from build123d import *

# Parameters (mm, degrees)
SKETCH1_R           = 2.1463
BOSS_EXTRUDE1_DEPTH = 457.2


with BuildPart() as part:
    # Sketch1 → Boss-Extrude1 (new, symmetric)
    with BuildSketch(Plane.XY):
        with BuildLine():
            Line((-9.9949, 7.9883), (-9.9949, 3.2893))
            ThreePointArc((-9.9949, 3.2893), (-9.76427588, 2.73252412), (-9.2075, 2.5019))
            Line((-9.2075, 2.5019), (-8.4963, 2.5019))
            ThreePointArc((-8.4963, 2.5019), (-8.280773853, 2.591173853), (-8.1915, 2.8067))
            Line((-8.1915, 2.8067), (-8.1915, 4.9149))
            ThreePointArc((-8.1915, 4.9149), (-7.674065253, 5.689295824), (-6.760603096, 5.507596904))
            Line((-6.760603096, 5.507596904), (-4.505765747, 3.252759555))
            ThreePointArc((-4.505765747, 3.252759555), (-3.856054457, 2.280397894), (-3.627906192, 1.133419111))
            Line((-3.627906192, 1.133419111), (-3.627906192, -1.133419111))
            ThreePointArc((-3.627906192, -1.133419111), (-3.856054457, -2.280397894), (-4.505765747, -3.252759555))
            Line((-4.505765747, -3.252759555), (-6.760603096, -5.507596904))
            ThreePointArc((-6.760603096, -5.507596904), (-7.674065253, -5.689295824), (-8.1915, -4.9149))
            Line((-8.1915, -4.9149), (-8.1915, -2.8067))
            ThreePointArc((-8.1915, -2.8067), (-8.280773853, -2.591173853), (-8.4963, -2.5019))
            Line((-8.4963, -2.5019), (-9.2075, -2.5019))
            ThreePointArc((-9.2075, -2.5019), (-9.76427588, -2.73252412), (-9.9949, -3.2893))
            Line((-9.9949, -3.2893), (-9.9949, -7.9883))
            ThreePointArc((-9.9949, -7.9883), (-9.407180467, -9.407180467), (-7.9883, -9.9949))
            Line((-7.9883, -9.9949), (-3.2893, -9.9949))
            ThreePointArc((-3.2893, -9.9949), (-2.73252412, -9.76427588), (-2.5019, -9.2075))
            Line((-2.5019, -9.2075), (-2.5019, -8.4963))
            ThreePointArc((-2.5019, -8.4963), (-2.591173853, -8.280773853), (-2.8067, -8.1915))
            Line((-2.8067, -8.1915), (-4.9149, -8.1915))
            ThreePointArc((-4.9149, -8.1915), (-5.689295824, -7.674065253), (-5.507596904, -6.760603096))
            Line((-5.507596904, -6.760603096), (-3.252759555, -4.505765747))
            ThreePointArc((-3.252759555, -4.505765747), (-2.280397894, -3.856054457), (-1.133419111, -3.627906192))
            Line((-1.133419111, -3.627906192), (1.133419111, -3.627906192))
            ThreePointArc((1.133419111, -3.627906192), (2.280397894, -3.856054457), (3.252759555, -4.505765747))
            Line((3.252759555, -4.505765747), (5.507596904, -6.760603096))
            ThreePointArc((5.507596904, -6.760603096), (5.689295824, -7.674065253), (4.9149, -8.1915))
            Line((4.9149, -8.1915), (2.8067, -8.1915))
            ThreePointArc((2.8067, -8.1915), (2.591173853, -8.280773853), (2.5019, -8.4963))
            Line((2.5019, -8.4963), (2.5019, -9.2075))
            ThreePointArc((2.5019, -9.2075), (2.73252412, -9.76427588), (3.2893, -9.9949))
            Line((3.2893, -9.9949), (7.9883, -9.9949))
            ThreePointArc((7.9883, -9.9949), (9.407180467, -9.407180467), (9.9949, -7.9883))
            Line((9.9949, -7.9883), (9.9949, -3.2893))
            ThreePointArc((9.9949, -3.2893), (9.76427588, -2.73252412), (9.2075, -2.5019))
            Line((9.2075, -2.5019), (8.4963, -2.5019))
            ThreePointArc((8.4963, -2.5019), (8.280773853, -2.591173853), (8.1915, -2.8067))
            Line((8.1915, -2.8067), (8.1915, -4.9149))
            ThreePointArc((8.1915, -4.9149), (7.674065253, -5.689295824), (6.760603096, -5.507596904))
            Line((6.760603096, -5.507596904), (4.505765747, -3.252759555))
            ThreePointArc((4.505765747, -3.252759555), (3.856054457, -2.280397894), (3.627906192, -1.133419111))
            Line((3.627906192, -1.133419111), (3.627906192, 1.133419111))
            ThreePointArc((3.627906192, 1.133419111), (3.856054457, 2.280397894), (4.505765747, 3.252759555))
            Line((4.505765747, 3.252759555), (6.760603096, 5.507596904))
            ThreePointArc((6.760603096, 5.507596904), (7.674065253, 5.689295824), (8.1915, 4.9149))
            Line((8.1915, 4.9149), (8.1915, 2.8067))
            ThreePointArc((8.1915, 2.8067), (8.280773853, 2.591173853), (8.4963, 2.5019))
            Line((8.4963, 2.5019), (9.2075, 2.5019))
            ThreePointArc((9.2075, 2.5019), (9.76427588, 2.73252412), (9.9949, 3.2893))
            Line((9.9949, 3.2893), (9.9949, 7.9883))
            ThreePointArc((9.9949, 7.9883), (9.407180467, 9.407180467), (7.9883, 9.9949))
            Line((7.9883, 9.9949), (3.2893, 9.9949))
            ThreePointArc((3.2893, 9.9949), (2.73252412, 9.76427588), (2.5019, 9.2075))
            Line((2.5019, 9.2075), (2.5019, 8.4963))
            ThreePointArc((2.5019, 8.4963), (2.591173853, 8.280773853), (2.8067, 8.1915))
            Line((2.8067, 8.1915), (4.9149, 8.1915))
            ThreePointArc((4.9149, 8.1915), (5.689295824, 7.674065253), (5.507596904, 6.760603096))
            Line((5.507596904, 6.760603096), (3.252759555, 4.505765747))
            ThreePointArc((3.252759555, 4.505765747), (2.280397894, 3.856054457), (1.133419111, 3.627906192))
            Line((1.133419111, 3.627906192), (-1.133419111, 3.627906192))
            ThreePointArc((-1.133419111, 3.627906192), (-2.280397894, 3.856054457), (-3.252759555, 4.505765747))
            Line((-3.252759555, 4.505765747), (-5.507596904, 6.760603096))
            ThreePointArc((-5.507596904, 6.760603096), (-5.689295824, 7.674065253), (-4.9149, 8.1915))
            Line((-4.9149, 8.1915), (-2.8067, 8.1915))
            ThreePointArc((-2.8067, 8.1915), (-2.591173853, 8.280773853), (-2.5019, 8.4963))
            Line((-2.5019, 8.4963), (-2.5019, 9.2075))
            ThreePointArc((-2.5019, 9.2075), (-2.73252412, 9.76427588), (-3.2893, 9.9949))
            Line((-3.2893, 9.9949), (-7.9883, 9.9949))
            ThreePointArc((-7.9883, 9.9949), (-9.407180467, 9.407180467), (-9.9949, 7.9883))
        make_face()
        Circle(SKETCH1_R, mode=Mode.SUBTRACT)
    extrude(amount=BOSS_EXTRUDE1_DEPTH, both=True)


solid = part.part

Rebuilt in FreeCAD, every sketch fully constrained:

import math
import FreeCAD as App
import Part
import Sketcher

V = App.Vector
Q = App.Units.Quantity

doc = App.newDocument("Part")
body = doc.addObject("PartDesign::Body", "Body")

sketch1 = body.newObject("Sketcher::SketchObject", "Sketch")
sketch1.AttachmentSupport = (doc.getObject("XY_Plane"), [""])
sketch1.MapMode = "FlatFace"
sketch1.addGeometry(Part.LineSegment(V(-9.9949, 7.9883, 0), V(-9.9949, 3.2893, 0)), False)
sketch1.addGeometry(Part.ArcOfCircle(Part.Circle(V(-9.2075, 3.2893, 0), V(0, 0, 1), 0.7874), math.radians(180), math.radians(270)), False)
sketch1.addGeometry(Part.LineSegment(V(-9.2075, 2.5019, 0), V(-8.4963, 2.5019, 0)), False)
sketch1.addGeometry(Part.ArcOfCircle(Part.Circle(V(-8.4963, 2.8067, 0), V(0, 0, 1), 0.3048), math.radians(-90), math.radians(0)), False)
sketch1.addGeometry(Part.LineSegment(V(-8.1915, 2.8067, 0), V(-8.1915, 4.9149, 0)), False)
sketch1.addGeometry(Part.ArcOfCircle(Part.Circle(V(-7.3533, 4.9149, 0), V(0, 0, 1), 0.8382), math.radians(45), math.radians(180)), False)
sketch1.addGeometry(Part.LineSegment(V(-6.760603, 5.507597, 0), V(-4.505766, 3.25276, 0)), False)
sketch1.addGeometry(Part.ArcOfCircle(Part.Circle(V(-6.625106, 1.133419, 0), V(0, 0, 1), 2.9972), math.radians(0), math.radians(45)), False)
sketch1.addGeometry(Part.LineSegment(V(-3.627906, 1.133419, 0), V(-3.627906, -1.133419, 0)), False)
sketch1.addGeometry(Part.ArcOfCircle(Part.Circle(V(-6.625106, -1.133419, 0), V(0, 0, 1), 2.9972), math.radians(-45), math.radians(0)), False)
sketch1.addGeometry(Part.LineSegment(V(-4.505766, -3.25276, 0), V(-6.760603, -5.507597, 0)), False)
sketch1.addGeometry(Part.ArcOfCircle(Part.Circle(V(-7.3533, -4.9149, 0), V(0, 0, 1), 0.8382), math.radians(180), math.radians(315)), False)
sketch1.addGeometry(Part.LineSegment(V(-8.1915, -4.9149, 0), V(-8.1915, -2.8067, 0)), False)
sketch1.addGeometry(Part.ArcOfCircle(Part.Circle(V(-8.4963, -2.8067, 0), V(0, 0, 1), 0.3048), math.radians(0), math.radians(90)), False)
sketch1.addGeometry(Part.LineSegment(V(-8.4963, -2.5019, 0), V(-9.2075, -2.5019, 0)), False)
sketch1.addGeometry(Part.ArcOfCircle(Part.Circle(V(-9.2075, -3.2893, 0), V(0, 0, 1), 0.7874), math.radians(90), math.radians(180)), False)
sketch1.addGeometry(Part.LineSegment(V(-9.9949, -3.2893, 0), V(-9.9949, -7.9883, 0)), False)
sketch1.addGeometry(Part.ArcOfCircle(Part.Circle(V(-7.9883, -7.9883, 0), V(0, 0, 1), 2.0066), math.radians(180), math.radians(270)), False)
sketch1.addGeometry(Part.LineSegment(V(-7.9883, -9.9949, 0), V(-3.2893, -9.9949, 0)), False)
sketch1.addGeometry(Part.ArcOfCircle(Part.Circle(V(-3.2893, -9.2075, 0), V(0, 0, 1), 0.7874), math.radians(-90), math.radians(0)), False)
sketch1.addGeometry(Part.LineSegment(V(-2.5019, -9.2075, 0), V(-2.5019, -8.4963, 0)), False)
sketch1.addGeometry(Part.ArcOfCircle(Part.Circle(V(-2.8067, -8.4963, 0), V(0, 0, 1), 0.3048), math.radians(0), math.radians(90)), False)
sketch1.addGeometry(Part.LineSegment(V(-2.8067, -8.1915, 0), V(-4.9149, -8.1915, 0)), False)
sketch1.addGeometry(Part.ArcOfCircle(Part.Circle(V(-4.9149, -7.3533, 0), V(0, 0, 1), 0.8382), math.radians(135), math.radians(270)), False)
sketch1.addGeometry(Part.LineSegment(V(-5.507597, -6.760603, 0), V(-3.25276, -4.505766, 0)), False)
sketch1.addGeometry(Part.ArcOfCircle(Part.Circle(V(-1.133419, -6.625106, 0), V(0, 0, 1), 2.9972), math.radians(90), math.radians(135)), False)
sketch1.addGeometry(Part.LineSegment(V(-1.133419, -3.627906, 0), V(1.133419, -3.627906, 0)), False)
sketch1.addGeometry(Part.ArcOfCircle(Part.Circle(V(1.133419, -6.625106, 0), V(0, 0, 1), 2.9972), math.radians(45), math.radians(90)), False)
sketch1.addGeometry(Part.LineSegment(V(3.25276, -4.505766, 0), V(5.507597, -6.760603, 0)), False)
sketch1.addGeometry(Part.ArcOfCircle(Part.Circle(V(4.9149, -7.3533, 0), V(0, 0, 1), 0.8382), math.radians(-90), math.radians(45)), False)
sketch1.addGeometry(Part.LineSegment(V(4.9149, -8.1915, 0), V(2.8067, -8.1915, 0)), False)
sketch1.addGeometry(Part.ArcOfCircle(Part.Circle(V(2.8067, -8.4963, 0), V(0, 0, 1), 0.3048), math.radians(90), math.radians(180)), False)
sketch1.addGeometry(Part.LineSegment(V(2.5019, -8.4963, 0), V(2.5019, -9.2075, 0)), False)
sketch1.addGeometry(Part.ArcOfCircle(Part.Circle(V(3.2893, -9.2075, 0), V(0, 0, 1), 0.7874), math.radians(180), math.radians(270)), False)
sketch1.addGeometry(Part.LineSegment(V(3.2893, -9.9949, 0), V(7.9883, -9.9949, 0)), False)
sketch1.addGeometry(Part.ArcOfCircle(Part.Circle(V(7.9883, -7.9883, 0), V(0, 0, 1), 2.0066), math.radians(-90), math.radians(0)), False)
sketch1.addGeometry(Part.LineSegment(V(9.9949, -7.9883, 0), V(9.9949, -3.2893, 0)), False)
sketch1.addGeometry(Part.ArcOfCircle(Part.Circle(V(9.2075, -3.2893, 0), V(0, 0, 1), 0.7874), math.radians(0), math.radians(90)), False)
sketch1.addGeometry(Part.LineSegment(V(9.2075, -2.5019, 0), V(8.4963, -2.5019, 0)), False)
sketch1.addGeometry(Part.ArcOfCircle(Part.Circle(V(8.4963, -2.8067, 0), V(0, 0, 1), 0.3048), math.radians(90), math.radians(180)), False)
sketch1.addGeometry(Part.LineSegment(V(8.1915, -2.8067, 0), V(8.1915, -4.9149, 0)), False)
sketch1.addGeometry(Part.ArcOfCircle(Part.Circle(V(7.3533, -4.9149, 0), V(0, 0, 1), 0.8382), math.radians(-135), math.radians(0)), False)
sketch1.addGeometry(Part.LineSegment(V(6.760603, -5.507597, 0), V(4.505766, -3.25276, 0)), False)
sketch1.addGeometry(Part.ArcOfCircle(Part.Circle(V(6.625106, -1.133419, 0), V(0, 0, 1), 2.9972), math.radians(180), math.radians(225)), False)
sketch1.addGeometry(Part.LineSegment(V(3.627906, -1.133419, 0), V(3.627906, 1.133419, 0)), False)
sketch1.addGeometry(Part.ArcOfCircle(Part.Circle(V(6.625106, 1.133419, 0), V(0, 0, 1), 2.9972), math.radians(135), math.radians(180)), False)
sketch1.addGeometry(Part.LineSegment(V(4.505766, 3.25276, 0), V(6.760603, 5.507597, 0)), False)
sketch1.addGeometry(Part.ArcOfCircle(Part.Circle(V(7.3533, 4.9149, 0), V(0, 0, 1), 0.8382), math.radians(0), math.radians(135)), False)
sketch1.addGeometry(Part.LineSegment(V(8.1915, 4.9149, 0), V(8.1915, 2.8067, 0)), False)
sketch1.addGeometry(Part.ArcOfCircle(Part.Circle(V(8.4963, 2.8067, 0), V(0, 0, 1), 0.3048), math.radians(180), math.radians(270)), False)
sketch1.addGeometry(Part.LineSegment(V(8.4963, 2.5019, 0), V(9.2075, 2.5019, 0)), False)
sketch1.addGeometry(Part.ArcOfCircle(Part.Circle(V(9.2075, 3.2893, 0), V(0, 0, 1), 0.7874), math.radians(-90), math.radians(0)), False)
sketch1.addGeometry(Part.LineSegment(V(9.9949, 3.2893, 0), V(9.9949, 7.9883, 0)), False)
sketch1.addGeometry(Part.ArcOfCircle(Part.Circle(V(7.9883, 7.9883, 0), V(0, 0, 1), 2.0066), math.radians(0), math.radians(90)), False)
sketch1.addGeometry(Part.LineSegment(V(7.9883, 9.9949, 0), V(3.2893, 9.9949, 0)), False)
sketch1.addGeometry(Part.ArcOfCircle(Part.Circle(V(3.2893, 9.2075, 0), V(0, 0, 1), 0.7874), math.radians(90), math.radians(180)), False)
sketch1.addGeometry(Part.LineSegment(V(2.5019, 9.2075, 0), V(2.5019, 8.4963, 0)), False)
sketch1.addGeometry(Part.ArcOfCircle(Part.Circle(V(2.8067, 8.4963, 0), V(0, 0, 1), 0.3048), math.radians(180), math.radians(270)), False)
sketch1.addGeometry(Part.LineSegment(V(2.8067, 8.1915, 0), V(4.9149, 8.1915, 0)), False)
sketch1.addGeometry(Part.ArcOfCircle(Part.Circle(V(4.9149, 7.3533, 0), V(0, 0, 1), 0.8382), math.radians(-45), math.radians(90)), False)
sketch1.addGeometry(Part.LineSegment(V(5.507597, 6.760603, 0), V(3.25276, 4.505766, 0)), False)
sketch1.addGeometry(Part.ArcOfCircle(Part.Circle(V(1.133419, 6.625106, 0), V(0, 0, 1), 2.9972), math.radians(-90), math.radians(-45)), False)
sketch1.addGeometry(Part.LineSegment(V(1.133419, 3.627906, 0), V(-1.133419, 3.627906, 0)), False)
sketch1.addGeometry(Part.ArcOfCircle(Part.Circle(V(-1.133419, 6.625106, 0), V(0, 0, 1), 2.9972), math.radians(-135), math.radians(-90)), False)
sketch1.addGeometry(Part.LineSegment(V(-3.25276, 4.505766, 0), V(-5.507597, 6.760603, 0)), False)
sketch1.addGeometry(Part.ArcOfCircle(Part.Circle(V(-4.9149, 7.3533, 0), V(0, 0, 1), 0.8382), math.radians(90), math.radians(225)), False)
sketch1.addGeometry(Part.LineSegment(V(-4.9149, 8.1915, 0), V(-2.8067, 8.1915, 0)), False)
sketch1.addGeometry(Part.ArcOfCircle(Part.Circle(V(-2.8067, 8.4963, 0), V(0, 0, 1), 0.3048), math.radians(-90), math.radians(0)), False)
sketch1.addGeometry(Part.LineSegment(V(-2.5019, 8.4963, 0), V(-2.5019, 9.2075, 0)), False)
sketch1.addGeometry(Part.ArcOfCircle(Part.Circle(V(-3.2893, 9.2075, 0), V(0, 0, 1), 0.7874), math.radians(0), math.radians(90)), False)
sketch1.addGeometry(Part.LineSegment(V(-3.2893, 9.9949, 0), V(-7.9883, 9.9949, 0)), False)
sketch1.addGeometry(Part.ArcOfCircle(Part.Circle(V(-7.9883, 7.9883, 0), V(0, 0, 1), 2.0066), math.radians(90), math.radians(180)), False)
sketch1.addGeometry(Part.Circle(V(0, 0, 0), V(0, 0, 1), 2.1463), False)
sketch1.addConstraint(Sketcher.Constraint("Tangent", 0, 2, 1, 1))
sketch1.addConstraint(Sketcher.Constraint("Tangent", 1, 2, 2, 1))
sketch1.addConstraint(Sketcher.Constraint("Tangent", 2, 2, 3, 1))
sketch1.addConstraint(Sketcher.Constraint("Tangent", 3, 2, 4, 1))
sketch1.addConstraint(Sketcher.Constraint("Tangent", 4, 2, 5, 2))
sketch1.addConstraint(Sketcher.Constraint("Tangent", 5, 1, 6, 1))
sketch1.addConstraint(Sketcher.Constraint("Tangent", 6, 2, 7, 2))
sketch1.addConstraint(Sketcher.Constraint("Tangent", 7, 1, 8, 1))
sketch1.addConstraint(Sketcher.Constraint("Tangent", 8, 2, 9, 2))
sketch1.addConstraint(Sketcher.Constraint("Tangent", 9, 1, 10, 1))
sketch1.addConstraint(Sketcher.Constraint("Tangent", 10, 2, 11, 2))
sketch1.addConstraint(Sketcher.Constraint("Tangent", 11, 1, 12, 1))
sketch1.addConstraint(Sketcher.Constraint("Tangent", 12, 2, 13, 1))
sketch1.addConstraint(Sketcher.Constraint("Tangent", 13, 2, 14, 1))
sketch1.addConstraint(Sketcher.Constraint("Tangent", 14, 2, 15, 1))
sketch1.addConstraint(Sketcher.Constraint("Tangent", 15, 2, 16, 1))
sketch1.addConstraint(Sketcher.Constraint("Tangent", 16, 2, 17, 1))
sketch1.addConstraint(Sketcher.Constraint("Tangent", 17, 2, 18, 1))
sketch1.addConstraint(Sketcher.Constraint("Tangent", 18, 2, 19, 1))
sketch1.addConstraint(Sketcher.Constraint("Tangent", 19, 2, 20, 1))
sketch1.addConstraint(Sketcher.Constraint("Tangent", 20, 2, 21, 1))
sketch1.addConstraint(Sketcher.Constraint("Tangent", 21, 2, 22, 1))
sketch1.addConstraint(Sketcher.Constraint("Tangent", 22, 2, 23, 2))
sketch1.addConstraint(Sketcher.Constraint("Tangent", 23, 1, 24, 1))
sketch1.addConstraint(Sketcher.Constraint("Tangent", 24, 2, 25, 2))
sketch1.addConstraint(Sketcher.Constraint("Tangent", 25, 1, 26, 1))
sketch1.addConstraint(Sketcher.Constraint("Tangent", 26, 2, 27, 2))
sketch1.addConstraint(Sketcher.Constraint("Tangent", 27, 1, 28, 1))
sketch1.addConstraint(Sketcher.Constraint("Tangent", 28, 2, 29, 2))
sketch1.addConstraint(Sketcher.Constraint("Tangent", 29, 1, 30, 1))
sketch1.addConstraint(Sketcher.Constraint("Tangent", 30, 2, 31, 1))
sketch1.addConstraint(Sketcher.Constraint("Tangent", 31, 2, 32, 1))
sketch1.addConstraint(Sketcher.Constraint("Tangent", 32, 2, 33, 1))
sketch1.addConstraint(Sketcher.Constraint("Tangent", 33, 2, 34, 1))
sketch1.addConstraint(Sketcher.Constraint("Tangent", 34, 2, 35, 1))
sketch1.addConstraint(Sketcher.Constraint("Tangent", 35, 2, 36, 1))
sketch1.addConstraint(Sketcher.Constraint("Tangent", 36, 2, 37, 1))
sketch1.addConstraint(Sketcher.Constraint("Tangent", 37, 2, 38, 1))
sketch1.addConstraint(Sketcher.Constraint("Tangent", 38, 2, 39, 1))
sketch1.addConstraint(Sketcher.Constraint("Tangent", 39, 2, 40, 1))
sketch1.addConstraint(Sketcher.Constraint("Tangent", 40, 2, 41, 2))
sketch1.addConstraint(Sketcher.Constraint("Tangent", 41, 1, 42, 1))
sketch1.addConstraint(Sketcher.Constraint("Tangent", 42, 2, 43, 2))
sketch1.addConstraint(Sketcher.Constraint("Tangent", 43, 1, 44, 1))
sketch1.addConstraint(Sketcher.Constraint("Tangent", 44, 2, 45, 2))
sketch1.addConstraint(Sketcher.Constraint("Tangent", 45, 1, 46, 1))
sketch1.addConstraint(Sketcher.Constraint("Tangent", 46, 2, 47, 2))
sketch1.addConstraint(Sketcher.Constraint("Tangent", 47, 1, 48, 1))
sketch1.addConstraint(Sketcher.Constraint("Tangent", 48, 2, 49, 1))
sketch1.addConstraint(Sketcher.Constraint("Tangent", 49, 2, 50, 1))
sketch1.addConstraint(Sketcher.Constraint("Tangent", 50, 2, 51, 1))
sketch1.addConstraint(Sketcher.Constraint("Tangent", 51, 2, 52, 1))
sketch1.addConstraint(Sketcher.Constraint("Tangent", 52, 2, 53, 1))
sketch1.addConstraint(Sketcher.Constraint("Tangent", 53, 2, 54, 1))
sketch1.addConstraint(Sketcher.Constraint("Tangent", 54, 2, 55, 1))
sketch1.addConstraint(Sketcher.Constraint("Tangent", 55, 2, 56, 1))
sketch1.addConstraint(Sketcher.Constraint("Tangent", 56, 2, 57, 1))
sketch1.addConstraint(Sketcher.Constraint("Tangent", 57, 2, 58, 1))
sketch1.addConstraint(Sketcher.Constraint("Tangent", 58, 2, 59, 2))
sketch1.addConstraint(Sketcher.Constraint("Tangent", 59, 1, 60, 1))
sketch1.addConstraint(Sketcher.Constraint("Tangent", 60, 2, 61, 2))
sketch1.addConstraint(Sketcher.Constraint("Tangent", 61, 1, 62, 1))
sketch1.addConstraint(Sketcher.Constraint("Tangent", 62, 2, 63, 2))
sketch1.addConstraint(Sketcher.Constraint("Tangent", 63, 1, 64, 1))
sketch1.addConstraint(Sketcher.Constraint("Tangent", 64, 2, 65, 2))
sketch1.addConstraint(Sketcher.Constraint("Tangent", 65, 1, 66, 1))
sketch1.addConstraint(Sketcher.Constraint("Tangent", 66, 2, 67, 1))
sketch1.addConstraint(Sketcher.Constraint("Tangent", 67, 2, 68, 1))
sketch1.addConstraint(Sketcher.Constraint("Tangent", 68, 2, 69, 1))
sketch1.addConstraint(Sketcher.Constraint("Tangent", 69, 2, 70, 1))
sketch1.addConstraint(Sketcher.Constraint("Tangent", 70, 2, 71, 1))
sketch1.addConstraint(Sketcher.Constraint("Tangent", 71, 2, 0, 1))
sketch1.addConstraint(Sketcher.Constraint("Vertical", 0))
sketch1.addConstraint(Sketcher.Constraint("Horizontal", 2))
sketch1.addConstraint(Sketcher.Constraint("Vertical", 4))
sketch1.addConstraint(Sketcher.Constraint("Vertical", 8))
sketch1.addConstraint(Sketcher.Constraint("Vertical", 12))
sketch1.addConstraint(Sketcher.Constraint("Horizontal", 14))
sketch1.addConstraint(Sketcher.Constraint("Vertical", 16))
sketch1.addConstraint(Sketcher.Constraint("Horizontal", 18))
sketch1.addConstraint(Sketcher.Constraint("Vertical", 20))
sketch1.addConstraint(Sketcher.Constraint("Horizontal", 22))
sketch1.addConstraint(Sketcher.Constraint("Horizontal", 26))
sketch1.addConstraint(Sketcher.Constraint("Horizontal", 30))
sketch1.addConstraint(Sketcher.Constraint("Vertical", 32))
sketch1.addConstraint(Sketcher.Constraint("Horizontal", 34))
sketch1.addConstraint(Sketcher.Constraint("Vertical", 36))
sketch1.addConstraint(Sketcher.Constraint("Horizontal", 38))
sketch1.addConstraint(Sketcher.Constraint("Vertical", 40))
sketch1.addConstraint(Sketcher.Constraint("Vertical", 44))
sketch1.addConstraint(Sketcher.Constraint("Vertical", 48))
sketch1.addConstraint(Sketcher.Constraint("Horizontal", 50))
sketch1.addConstraint(Sketcher.Constraint("Vertical", 52))
sketch1.addConstraint(Sketcher.Constraint("Horizontal", 54))
sketch1.addConstraint(Sketcher.Constraint("Vertical", 56))
sketch1.addConstraint(Sketcher.Constraint("Horizontal", 58))
sketch1.addConstraint(Sketcher.Constraint("Horizontal", 62))
sketch1.addConstraint(Sketcher.Constraint("Horizontal", 66))
sketch1.addConstraint(Sketcher.Constraint("Vertical", 68))
sketch1.addConstraint(Sketcher.Constraint("Horizontal", 70))
sketch1.addConstraint(Sketcher.Constraint("Coincident", 72, 3, -1, 1))
sketch1.addConstraint(Sketcher.Constraint("Equal", 7, 9))
sketch1.addConstraint(Sketcher.Constraint("Equal", 5, 11))
sketch1.addConstraint(Sketcher.Constraint("Equal", 3, 13))
sketch1.addConstraint(Sketcher.Constraint("Equal", 1, 15))
sketch1.addConstraint(Sketcher.Constraint("Equal", 15, 19))
sketch1.addConstraint(Sketcher.Constraint("Equal", 13, 21))
sketch1.addConstraint(Sketcher.Constraint("Equal", 11, 23))
sketch1.addConstraint(Sketcher.Constraint("Equal", 9, 25))
sketch1.addConstraint(Sketcher.Constraint("Equal", 25, 27))
sketch1.addConstraint(Sketcher.Constraint("Equal", 23, 29))
sketch1.addConstraint(Sketcher.Constraint("Equal", 21, 31))
sketch1.addConstraint(Sketcher.Constraint("Equal", 19, 33))
sketch1.addConstraint(Sketcher.Constraint("Equal", 17, 35))
sketch1.addConstraint(Sketcher.Constraint("Equal", 33, 37))
sketch1.addConstraint(Sketcher.Constraint("Equal", 31, 39))
sketch1.addConstraint(Sketcher.Constraint("Equal", 29, 41))
sketch1.addConstraint(Sketcher.Constraint("Equal", 27, 43))
sketch1.addConstraint(Sketcher.Constraint("Equal", 43, 45))
sketch1.addConstraint(Sketcher.Constraint("Equal", 41, 47))
sketch1.addConstraint(Sketcher.Constraint("Equal", 39, 49))
sketch1.addConstraint(Sketcher.Constraint("Equal", 37, 51))
sketch1.addConstraint(Sketcher.Constraint("Equal", 35, 53))
sketch1.addConstraint(Sketcher.Constraint("Equal", 51, 55))
sketch1.addConstraint(Sketcher.Constraint("Equal", 49, 57))
sketch1.addConstraint(Sketcher.Constraint("Equal", 47, 59))
sketch1.addConstraint(Sketcher.Constraint("Equal", 45, 61))
sketch1.addConstraint(Sketcher.Constraint("Equal", 61, 63))
sketch1.addConstraint(Sketcher.Constraint("Equal", 59, 65))
sketch1.addConstraint(Sketcher.Constraint("Equal", 57, 67))
sketch1.addConstraint(Sketcher.Constraint("Equal", 55, 69))
sketch1.addConstraint(Sketcher.Constraint("Equal", 53, 71))
sketch1.addConstraint(Sketcher.Constraint("Symmetric", 1, 3, 37, 3, -1, 1))
sketch1.addConstraint(Sketcher.Constraint("Symmetric", 5, 3, 41, 3, -1, 1))
sketch1.addConstraint(Sketcher.Constraint("Symmetric", 7, 3, 43, 3, -1, 1))
sketch1.addConstraint(Sketcher.Constraint("Symmetric", 11, 3, 47, 3, -1, 1))
sketch1.addConstraint(Sketcher.Constraint("Symmetric", 15, 3, 51, 3, -1, 1))
sketch1.addConstraint(Sketcher.Constraint("Symmetric", 19, 3, 55, 3, -1, 1))
sketch1.addConstraint(Sketcher.Constraint("Symmetric", 23, 3, 59, 3, -1, 1))
sketch1.addConstraint(Sketcher.Constraint("Symmetric", 25, 3, 61, 3, -1, 1))
sketch1.addConstraint(Sketcher.Constraint("Symmetric", 29, 3, 65, 3, -1, 1))
sketch1.addConstraint(Sketcher.Constraint("Symmetric", 33, 3, 69, 3, -1, 1))
sketch1.addConstraint(Sketcher.Constraint("Symmetric", 23, 3, 29, 3, -2))
sketch1.addConstraint(Sketcher.Constraint("Symmetric", 19, 3, 33, 3, -2))
sketch1.addConstraint(Sketcher.Constraint("Symmetric", 15, 3, 37, 3, -2))
sketch1.addConstraint(Sketcher.Constraint("Symmetric", 11, 3, 41, 3, -2))
sketch1.addConstraint(Sketcher.Constraint("Perpendicular", 6, 10))
sketch1.addConstraint(Sketcher.Constraint("Parallel", 10, 24))
sketch1.addConstraint(Sketcher.Constraint("Perpendicular", 24, 28))
sketch1.addConstraint(Sketcher.Constraint("Perpendicular", 42, 46))
sketch1.addConstraint(Sketcher.Constraint("Perpendicular", 60, 64))
sketch1.addConstraint(Sketcher.Constraint("Horizontal", 9, 3, 43, 3))
sketch1.addConstraint(Sketcher.Constraint("Equal", 70, 0))
sketch1.addConstraint(Sketcher.Constraint("Equal", 66, 4))
sketch1.addConstraint(Sketcher.Constraint("Equal", 62, 8))
sketch1.addConstraint(Sketcher.Constraint("Equal", 50, 20))
sketch1.addConstraint(Sketcher.Constraint("Equal", 10, 24))
sketch1.addConstraint(Sketcher.Constraint("Diameter", 72, Q("0.169 in")))
sketch1.addConstraint(Sketcher.Constraint("Radius", 1, Q("0.031 in")))
sketch1.addConstraint(Sketcher.Constraint("Radius", 3, Q("0.012 in")))
sketch1.addConstraint(Sketcher.Constraint("Radius", 5, Q("0.033 in")))
sketch1.addConstraint(Sketcher.Constraint("Radius", 7, Q("0.118 in")))
sketch1.addConstraint(Sketcher.Constraint("Radius", 17, Q("0.079 in")))
sketch1.addConstraint(Sketcher.Constraint("DistanceX", 2, 1, 2, 2, Q("0.028 in")))
sketch1.addConstraint(Sketcher.Constraint("DistanceX", 18, 1, 18, 2, Q("0.185 in")))
sketch1.addConstraint(Sketcher.Constraint("DistanceX", 22, 2, 22, 1, Q("0.083 in")))
sketch1.addConstraint(Sketcher.Constraint("DistanceX", 1, 3, -1, 1, Q("0.3625 in")))
sketch1.addConstraint(Sketcher.Constraint("DistanceX", 26, 1, 26, 2, 2.266838))
pad1 = body.newObject("PartDesign::Pad", "Pad")
pad1.Profile = sketch1
pad1.Length = Q("36 in")
pad1.Midplane = True

doc.recompute()
